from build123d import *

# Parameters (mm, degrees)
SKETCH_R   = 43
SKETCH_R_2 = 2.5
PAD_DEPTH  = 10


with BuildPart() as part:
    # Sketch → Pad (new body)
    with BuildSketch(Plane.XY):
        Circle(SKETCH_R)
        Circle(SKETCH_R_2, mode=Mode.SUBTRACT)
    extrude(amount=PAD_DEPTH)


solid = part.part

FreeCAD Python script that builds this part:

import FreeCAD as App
import Part
import Sketcher

V = App.Vector
Q = App.Units.Quantity

doc = App.newDocument("Part")
params = doc.addObject("Spreadsheet::Sheet", "Params")
for row, (alias, value) in enumerate([
    ("sketch1_diameter", "86 mm"),
    ("sketch1_diameter2", "5 mm"),
    ("pad1_length", "10 mm"),
], start=1):
    params.set(f"A{row}", alias)
    params.set(f"B{row}", "=" + value)
    params.setAlias(f"B{row}", alias)

body = doc.addObject("PartDesign::Body", "Body")

# Sketch on XY plane
sketch1 = body.newObject("Sketcher::SketchObject", "Sketch")
sketch1.AttachmentSupport = (doc.getObject("XY_Plane"), [""])
sketch1.MapMode = "FlatFace"
sketch1.addGeometry([
    Part.Circle(V(0, 0, 0), V(0, 0, 1), 43),
    Part.Circle(V(0, 0, 0), V(0, 0, 1), 2.5),
], False)
sketch1.addConstraint([
    Sketcher.Constraint("Coincident", 0, 3, -1, 1),
    Sketcher.Constraint("Coincident", 1, 3, -1, 1),
    Sketcher.Constraint("Diameter", 0, Q("86 mm")),
    Sketcher.Constraint("Diameter", 1, Q("5 mm")),
])
sketch1.setExpression("Constraints[2]", "Params.sketch1_diameter")
sketch1.setExpression("Constraints[3]", "Params.sketch1_diameter2")
pad1 = body.newObject("PartDesign::Pad", "Pad")
pad1.Profile = sketch1
pad1.setExpression("Length", "Params.pad1_length")

doc.recompute()
